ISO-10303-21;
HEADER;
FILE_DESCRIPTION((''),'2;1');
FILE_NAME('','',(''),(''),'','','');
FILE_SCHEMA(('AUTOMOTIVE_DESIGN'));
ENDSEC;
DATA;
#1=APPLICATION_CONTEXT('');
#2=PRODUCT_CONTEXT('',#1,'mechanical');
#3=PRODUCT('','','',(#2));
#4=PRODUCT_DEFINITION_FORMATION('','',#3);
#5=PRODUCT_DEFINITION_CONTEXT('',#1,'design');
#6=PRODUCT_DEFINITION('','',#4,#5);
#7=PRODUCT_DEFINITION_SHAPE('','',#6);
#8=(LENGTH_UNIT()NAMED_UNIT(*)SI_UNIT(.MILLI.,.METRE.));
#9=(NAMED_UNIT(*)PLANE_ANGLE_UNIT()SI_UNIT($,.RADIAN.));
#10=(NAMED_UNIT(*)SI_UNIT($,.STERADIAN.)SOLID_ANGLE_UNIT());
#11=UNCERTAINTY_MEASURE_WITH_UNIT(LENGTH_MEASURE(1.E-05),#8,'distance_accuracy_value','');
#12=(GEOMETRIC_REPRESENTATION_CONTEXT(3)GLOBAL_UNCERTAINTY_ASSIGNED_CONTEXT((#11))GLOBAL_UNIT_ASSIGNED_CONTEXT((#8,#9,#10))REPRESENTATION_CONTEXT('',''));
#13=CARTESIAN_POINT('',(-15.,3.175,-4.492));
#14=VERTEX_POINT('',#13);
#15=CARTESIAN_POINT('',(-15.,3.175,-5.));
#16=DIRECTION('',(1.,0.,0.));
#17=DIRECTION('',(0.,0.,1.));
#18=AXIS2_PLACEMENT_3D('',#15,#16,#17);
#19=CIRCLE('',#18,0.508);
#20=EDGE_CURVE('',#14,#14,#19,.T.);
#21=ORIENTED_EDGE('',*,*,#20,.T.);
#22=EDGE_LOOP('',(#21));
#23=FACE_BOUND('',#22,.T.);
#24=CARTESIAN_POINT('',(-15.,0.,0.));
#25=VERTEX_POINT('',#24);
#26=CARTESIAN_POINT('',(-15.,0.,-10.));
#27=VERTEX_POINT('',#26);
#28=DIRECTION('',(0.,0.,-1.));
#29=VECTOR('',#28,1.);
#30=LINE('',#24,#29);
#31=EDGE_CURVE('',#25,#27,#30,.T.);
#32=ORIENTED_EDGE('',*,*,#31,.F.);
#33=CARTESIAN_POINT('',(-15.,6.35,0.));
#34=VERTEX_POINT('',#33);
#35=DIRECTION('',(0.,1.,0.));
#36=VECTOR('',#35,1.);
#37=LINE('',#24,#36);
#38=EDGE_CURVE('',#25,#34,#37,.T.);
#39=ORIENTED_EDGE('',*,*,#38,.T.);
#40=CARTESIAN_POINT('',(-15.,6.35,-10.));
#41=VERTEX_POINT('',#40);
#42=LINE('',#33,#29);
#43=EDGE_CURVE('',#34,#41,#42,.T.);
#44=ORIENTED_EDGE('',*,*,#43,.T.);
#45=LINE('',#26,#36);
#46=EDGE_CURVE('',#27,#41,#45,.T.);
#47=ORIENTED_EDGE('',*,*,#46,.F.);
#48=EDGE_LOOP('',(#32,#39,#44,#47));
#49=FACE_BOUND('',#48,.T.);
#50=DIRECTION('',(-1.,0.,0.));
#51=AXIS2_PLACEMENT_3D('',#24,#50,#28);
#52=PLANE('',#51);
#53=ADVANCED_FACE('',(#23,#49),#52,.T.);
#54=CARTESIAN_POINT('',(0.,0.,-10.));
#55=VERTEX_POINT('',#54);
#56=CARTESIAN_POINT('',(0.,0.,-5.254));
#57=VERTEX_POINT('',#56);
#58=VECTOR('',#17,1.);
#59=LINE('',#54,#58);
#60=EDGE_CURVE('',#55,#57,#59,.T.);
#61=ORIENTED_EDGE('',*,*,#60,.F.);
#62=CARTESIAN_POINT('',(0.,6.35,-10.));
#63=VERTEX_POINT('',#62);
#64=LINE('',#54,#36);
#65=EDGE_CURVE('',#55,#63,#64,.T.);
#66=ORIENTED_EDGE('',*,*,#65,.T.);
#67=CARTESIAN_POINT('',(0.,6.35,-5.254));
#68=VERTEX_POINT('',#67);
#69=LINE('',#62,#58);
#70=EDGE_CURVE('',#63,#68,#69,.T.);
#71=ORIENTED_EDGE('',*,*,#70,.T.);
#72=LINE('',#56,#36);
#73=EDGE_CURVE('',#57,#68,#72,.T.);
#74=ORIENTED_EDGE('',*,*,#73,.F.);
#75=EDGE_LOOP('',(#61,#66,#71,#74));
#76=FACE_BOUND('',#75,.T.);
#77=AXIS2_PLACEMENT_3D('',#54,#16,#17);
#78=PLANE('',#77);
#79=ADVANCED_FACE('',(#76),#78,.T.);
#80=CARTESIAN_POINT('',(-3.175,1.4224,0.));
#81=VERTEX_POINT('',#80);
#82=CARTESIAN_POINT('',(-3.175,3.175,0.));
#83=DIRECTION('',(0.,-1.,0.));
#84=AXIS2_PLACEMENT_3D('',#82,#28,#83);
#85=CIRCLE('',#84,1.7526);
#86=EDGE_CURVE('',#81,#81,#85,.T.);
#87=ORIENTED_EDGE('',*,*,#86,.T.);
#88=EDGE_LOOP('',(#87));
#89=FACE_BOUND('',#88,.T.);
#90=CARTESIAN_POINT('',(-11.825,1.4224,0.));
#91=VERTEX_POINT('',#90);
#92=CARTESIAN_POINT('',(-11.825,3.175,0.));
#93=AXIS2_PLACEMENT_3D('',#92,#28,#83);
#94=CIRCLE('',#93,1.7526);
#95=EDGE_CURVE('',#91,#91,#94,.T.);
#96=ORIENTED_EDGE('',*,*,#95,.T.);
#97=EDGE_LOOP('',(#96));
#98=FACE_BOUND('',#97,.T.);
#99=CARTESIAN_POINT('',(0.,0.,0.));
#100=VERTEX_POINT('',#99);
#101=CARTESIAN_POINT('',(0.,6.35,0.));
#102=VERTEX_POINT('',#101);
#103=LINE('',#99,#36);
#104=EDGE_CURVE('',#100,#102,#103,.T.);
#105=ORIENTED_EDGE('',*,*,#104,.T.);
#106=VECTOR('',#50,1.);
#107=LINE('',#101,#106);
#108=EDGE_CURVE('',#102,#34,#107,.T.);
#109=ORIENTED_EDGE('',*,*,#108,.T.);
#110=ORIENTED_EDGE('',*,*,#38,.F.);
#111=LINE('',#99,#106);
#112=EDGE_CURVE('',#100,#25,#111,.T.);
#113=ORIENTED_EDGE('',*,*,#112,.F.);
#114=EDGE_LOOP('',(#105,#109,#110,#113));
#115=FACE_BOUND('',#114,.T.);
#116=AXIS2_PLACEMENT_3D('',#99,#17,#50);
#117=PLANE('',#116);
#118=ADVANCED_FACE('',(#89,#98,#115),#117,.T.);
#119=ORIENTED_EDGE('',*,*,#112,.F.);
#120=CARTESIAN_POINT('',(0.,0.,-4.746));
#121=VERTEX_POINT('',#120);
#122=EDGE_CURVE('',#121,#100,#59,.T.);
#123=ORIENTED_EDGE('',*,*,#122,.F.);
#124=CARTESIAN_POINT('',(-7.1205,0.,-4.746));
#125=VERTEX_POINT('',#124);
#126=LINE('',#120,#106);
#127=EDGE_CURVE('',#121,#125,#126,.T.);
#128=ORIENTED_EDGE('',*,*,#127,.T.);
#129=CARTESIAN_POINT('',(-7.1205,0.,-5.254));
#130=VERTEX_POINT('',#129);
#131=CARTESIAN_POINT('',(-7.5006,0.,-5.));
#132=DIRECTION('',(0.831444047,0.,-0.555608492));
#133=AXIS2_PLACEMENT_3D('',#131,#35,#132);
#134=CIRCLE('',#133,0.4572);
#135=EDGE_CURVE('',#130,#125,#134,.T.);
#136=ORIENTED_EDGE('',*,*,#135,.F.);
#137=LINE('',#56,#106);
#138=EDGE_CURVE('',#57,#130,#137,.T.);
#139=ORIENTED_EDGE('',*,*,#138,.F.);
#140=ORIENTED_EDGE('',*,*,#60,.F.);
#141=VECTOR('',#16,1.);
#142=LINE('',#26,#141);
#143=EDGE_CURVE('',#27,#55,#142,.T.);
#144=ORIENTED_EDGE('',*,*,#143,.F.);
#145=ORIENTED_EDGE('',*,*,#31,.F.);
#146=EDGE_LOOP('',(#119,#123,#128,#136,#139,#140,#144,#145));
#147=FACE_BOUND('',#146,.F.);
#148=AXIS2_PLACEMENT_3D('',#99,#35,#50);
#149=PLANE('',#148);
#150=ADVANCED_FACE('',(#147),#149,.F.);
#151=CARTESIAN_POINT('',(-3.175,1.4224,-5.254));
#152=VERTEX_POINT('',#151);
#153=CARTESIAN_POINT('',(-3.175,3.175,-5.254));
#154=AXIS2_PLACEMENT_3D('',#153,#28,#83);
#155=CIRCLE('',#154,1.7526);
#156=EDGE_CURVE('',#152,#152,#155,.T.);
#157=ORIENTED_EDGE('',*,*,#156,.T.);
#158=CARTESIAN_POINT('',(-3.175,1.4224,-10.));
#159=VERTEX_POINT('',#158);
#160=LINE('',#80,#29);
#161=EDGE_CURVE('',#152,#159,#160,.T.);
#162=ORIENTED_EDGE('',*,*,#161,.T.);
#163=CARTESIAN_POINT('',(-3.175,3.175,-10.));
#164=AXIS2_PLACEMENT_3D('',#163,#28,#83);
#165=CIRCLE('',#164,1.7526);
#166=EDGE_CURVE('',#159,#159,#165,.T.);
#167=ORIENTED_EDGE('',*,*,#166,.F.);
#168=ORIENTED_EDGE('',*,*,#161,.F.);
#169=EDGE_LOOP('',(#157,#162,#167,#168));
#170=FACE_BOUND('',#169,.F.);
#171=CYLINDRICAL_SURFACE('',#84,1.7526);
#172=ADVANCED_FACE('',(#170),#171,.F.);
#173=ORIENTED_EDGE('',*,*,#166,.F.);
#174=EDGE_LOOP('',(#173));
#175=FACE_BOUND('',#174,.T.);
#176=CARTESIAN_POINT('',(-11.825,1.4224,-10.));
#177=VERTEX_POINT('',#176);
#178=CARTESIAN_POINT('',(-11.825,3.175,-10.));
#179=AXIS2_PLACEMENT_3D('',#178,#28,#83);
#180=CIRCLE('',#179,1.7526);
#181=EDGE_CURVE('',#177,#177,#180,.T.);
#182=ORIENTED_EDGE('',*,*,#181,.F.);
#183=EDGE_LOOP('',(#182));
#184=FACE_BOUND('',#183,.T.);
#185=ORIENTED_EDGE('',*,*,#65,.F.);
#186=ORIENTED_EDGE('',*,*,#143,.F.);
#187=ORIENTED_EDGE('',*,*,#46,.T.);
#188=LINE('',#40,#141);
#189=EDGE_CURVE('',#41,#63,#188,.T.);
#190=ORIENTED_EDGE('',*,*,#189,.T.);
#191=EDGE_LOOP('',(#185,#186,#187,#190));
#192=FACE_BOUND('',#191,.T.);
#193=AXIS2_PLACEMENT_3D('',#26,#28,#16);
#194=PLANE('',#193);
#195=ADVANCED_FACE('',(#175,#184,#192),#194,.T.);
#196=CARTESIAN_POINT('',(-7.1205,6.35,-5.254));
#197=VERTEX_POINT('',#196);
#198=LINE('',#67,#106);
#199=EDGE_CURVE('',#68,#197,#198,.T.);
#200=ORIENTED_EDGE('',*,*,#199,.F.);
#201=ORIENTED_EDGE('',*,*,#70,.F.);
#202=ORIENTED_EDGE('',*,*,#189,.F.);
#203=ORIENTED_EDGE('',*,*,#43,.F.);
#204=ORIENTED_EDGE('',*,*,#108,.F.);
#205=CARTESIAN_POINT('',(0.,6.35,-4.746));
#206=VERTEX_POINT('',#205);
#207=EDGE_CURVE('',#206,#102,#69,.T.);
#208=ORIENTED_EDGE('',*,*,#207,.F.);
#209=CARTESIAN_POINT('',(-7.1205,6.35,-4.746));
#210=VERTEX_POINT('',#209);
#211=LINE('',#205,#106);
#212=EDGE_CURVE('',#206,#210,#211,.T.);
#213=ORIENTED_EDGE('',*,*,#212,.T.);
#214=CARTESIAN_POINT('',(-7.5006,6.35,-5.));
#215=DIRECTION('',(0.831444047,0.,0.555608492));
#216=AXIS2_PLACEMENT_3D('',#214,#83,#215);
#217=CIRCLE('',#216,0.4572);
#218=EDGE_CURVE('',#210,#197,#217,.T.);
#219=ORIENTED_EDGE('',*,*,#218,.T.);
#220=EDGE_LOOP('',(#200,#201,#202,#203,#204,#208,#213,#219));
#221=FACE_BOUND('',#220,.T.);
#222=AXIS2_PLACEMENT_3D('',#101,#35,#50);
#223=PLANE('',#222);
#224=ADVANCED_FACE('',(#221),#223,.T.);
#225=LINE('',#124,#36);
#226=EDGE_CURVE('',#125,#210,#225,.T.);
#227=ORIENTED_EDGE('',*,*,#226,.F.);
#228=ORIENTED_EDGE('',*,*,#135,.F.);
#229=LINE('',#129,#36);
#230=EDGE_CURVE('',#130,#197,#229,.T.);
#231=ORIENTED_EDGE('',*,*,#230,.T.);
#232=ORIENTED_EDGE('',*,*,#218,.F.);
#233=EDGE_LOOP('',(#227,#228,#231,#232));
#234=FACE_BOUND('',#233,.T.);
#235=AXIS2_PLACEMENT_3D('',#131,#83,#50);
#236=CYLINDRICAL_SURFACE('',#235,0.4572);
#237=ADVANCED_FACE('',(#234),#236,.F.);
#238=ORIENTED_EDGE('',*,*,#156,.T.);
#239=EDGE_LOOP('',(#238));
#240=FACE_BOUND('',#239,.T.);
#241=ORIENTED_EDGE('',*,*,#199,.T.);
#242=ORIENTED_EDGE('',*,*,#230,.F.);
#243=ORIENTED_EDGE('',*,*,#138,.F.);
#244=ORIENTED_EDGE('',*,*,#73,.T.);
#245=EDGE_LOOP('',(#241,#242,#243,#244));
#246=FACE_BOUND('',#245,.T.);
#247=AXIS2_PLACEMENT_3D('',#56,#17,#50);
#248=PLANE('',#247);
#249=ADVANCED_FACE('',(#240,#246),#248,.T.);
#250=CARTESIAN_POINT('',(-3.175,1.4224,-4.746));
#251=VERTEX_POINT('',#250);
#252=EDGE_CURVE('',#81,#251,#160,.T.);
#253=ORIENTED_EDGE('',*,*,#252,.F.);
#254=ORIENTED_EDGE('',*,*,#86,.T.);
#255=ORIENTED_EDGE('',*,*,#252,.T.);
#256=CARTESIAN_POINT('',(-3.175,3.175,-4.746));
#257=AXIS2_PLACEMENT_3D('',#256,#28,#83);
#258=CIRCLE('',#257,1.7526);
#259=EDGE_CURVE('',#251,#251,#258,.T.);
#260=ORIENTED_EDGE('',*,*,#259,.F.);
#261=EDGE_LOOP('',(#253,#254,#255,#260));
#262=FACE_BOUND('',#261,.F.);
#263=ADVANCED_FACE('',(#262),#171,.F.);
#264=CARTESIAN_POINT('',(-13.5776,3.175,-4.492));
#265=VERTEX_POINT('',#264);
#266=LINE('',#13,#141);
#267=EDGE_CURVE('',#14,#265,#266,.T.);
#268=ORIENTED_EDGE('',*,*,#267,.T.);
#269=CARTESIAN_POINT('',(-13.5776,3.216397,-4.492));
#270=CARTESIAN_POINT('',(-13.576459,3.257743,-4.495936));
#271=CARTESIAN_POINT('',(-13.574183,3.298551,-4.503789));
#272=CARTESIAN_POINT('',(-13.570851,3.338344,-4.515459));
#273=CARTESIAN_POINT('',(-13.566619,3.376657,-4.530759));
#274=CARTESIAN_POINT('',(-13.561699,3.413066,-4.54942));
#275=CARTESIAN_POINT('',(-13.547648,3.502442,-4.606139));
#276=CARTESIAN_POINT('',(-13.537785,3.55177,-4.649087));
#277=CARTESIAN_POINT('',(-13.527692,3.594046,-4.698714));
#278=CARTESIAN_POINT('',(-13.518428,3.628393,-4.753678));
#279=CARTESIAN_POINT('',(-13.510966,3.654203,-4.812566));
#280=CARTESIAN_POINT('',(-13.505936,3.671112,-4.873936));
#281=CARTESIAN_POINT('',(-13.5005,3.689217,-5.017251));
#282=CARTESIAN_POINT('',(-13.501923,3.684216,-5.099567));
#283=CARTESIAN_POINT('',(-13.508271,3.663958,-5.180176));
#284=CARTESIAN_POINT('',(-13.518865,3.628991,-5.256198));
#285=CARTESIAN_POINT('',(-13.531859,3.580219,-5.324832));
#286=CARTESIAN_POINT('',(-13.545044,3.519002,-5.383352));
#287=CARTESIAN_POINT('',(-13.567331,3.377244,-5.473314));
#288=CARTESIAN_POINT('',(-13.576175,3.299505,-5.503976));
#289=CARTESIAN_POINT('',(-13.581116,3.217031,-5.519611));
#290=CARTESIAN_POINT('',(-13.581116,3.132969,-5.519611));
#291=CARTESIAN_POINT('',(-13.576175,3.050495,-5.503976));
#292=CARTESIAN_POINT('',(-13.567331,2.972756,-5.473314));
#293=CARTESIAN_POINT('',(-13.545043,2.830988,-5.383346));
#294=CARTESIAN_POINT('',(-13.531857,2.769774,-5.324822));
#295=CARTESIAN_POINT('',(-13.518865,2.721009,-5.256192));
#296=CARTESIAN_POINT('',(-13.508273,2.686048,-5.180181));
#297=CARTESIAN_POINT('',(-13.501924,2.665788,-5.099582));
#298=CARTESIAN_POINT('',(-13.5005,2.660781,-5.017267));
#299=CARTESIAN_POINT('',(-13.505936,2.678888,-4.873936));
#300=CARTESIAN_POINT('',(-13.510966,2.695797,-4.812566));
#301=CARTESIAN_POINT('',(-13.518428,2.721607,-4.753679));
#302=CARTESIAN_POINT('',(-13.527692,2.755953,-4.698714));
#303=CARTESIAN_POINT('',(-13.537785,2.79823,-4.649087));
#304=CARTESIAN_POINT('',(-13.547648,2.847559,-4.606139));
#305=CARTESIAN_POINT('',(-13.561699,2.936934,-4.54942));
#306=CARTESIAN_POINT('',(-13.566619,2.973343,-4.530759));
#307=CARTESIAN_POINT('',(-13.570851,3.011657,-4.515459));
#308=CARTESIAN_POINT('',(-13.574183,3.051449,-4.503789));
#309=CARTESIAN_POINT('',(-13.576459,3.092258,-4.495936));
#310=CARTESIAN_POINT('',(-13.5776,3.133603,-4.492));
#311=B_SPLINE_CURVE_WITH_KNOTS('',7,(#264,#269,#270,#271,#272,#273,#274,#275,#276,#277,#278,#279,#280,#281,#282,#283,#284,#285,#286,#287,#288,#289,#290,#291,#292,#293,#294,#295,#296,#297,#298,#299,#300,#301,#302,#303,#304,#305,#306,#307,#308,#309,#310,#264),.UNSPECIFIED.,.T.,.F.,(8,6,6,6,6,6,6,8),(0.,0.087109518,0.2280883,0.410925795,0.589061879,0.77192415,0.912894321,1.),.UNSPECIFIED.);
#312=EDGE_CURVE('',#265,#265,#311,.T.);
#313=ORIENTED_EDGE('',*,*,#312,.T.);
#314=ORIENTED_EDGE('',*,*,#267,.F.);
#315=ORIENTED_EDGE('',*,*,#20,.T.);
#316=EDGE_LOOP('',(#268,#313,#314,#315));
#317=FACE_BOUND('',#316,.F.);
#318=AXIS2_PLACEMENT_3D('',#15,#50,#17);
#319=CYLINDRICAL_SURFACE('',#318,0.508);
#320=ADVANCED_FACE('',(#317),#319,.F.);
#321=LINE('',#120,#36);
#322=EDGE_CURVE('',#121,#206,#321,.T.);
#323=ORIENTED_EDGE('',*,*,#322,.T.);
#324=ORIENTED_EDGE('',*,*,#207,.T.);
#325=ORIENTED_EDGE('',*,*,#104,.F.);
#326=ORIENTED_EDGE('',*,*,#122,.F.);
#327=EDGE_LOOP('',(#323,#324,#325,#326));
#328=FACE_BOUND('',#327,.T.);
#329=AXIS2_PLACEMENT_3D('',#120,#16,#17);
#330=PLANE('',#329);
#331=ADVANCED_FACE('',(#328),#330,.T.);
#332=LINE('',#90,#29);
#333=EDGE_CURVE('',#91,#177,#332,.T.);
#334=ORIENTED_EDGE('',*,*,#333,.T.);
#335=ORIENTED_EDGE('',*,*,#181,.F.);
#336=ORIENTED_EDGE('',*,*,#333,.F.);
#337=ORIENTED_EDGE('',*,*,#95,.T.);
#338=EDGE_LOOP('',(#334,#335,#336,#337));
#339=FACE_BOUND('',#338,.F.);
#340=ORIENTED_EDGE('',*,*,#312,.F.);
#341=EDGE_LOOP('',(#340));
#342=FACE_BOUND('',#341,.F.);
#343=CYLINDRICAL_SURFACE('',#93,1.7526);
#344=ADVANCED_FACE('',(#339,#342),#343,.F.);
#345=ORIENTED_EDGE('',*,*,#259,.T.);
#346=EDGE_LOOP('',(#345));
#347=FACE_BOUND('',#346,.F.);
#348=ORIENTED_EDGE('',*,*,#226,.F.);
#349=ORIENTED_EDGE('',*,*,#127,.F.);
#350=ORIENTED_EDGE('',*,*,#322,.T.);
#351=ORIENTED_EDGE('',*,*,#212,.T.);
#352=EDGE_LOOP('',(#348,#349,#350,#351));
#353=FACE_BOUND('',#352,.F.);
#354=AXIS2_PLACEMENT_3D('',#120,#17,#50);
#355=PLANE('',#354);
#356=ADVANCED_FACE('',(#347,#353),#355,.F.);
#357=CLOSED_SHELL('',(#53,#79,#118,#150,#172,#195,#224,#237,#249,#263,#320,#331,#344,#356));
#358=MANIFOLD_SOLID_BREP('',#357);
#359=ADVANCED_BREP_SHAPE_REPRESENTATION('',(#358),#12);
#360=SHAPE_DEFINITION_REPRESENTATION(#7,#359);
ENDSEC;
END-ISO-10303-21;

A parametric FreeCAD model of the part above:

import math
import FreeCAD as App
import Part
import Sketcher
Q = App.Units.Quantity

doc = App.newDocument("Part")
body = doc.addObject("PartDesign::Body", "Body")

# Sketch on XZ plane
sketch1 = body.newObject("Sketcher::SketchObject", "Sketch")
sketch1.AttachmentSupport = (doc.getObject("XZ_Plane"), [""])
sketch1.MapMode = "FlatFace"
sketch1.addGeometry([
    Part.LineSegment(App.Vector(-15, 0, 0), App.Vector(0, 0, 0)),  # 0
    Part.LineSegment(App.Vector(0, 0, 0), App.Vector(0, -4.746, 0)),  # 1
    Part.LineSegment(App.Vector(0, -4.746, 0), App.Vector(-7.1205, -4.746, 0)),  # 2
    Part.ArcOfCircle(Part.Circle(App.Vector(-7.5006, -5, 0), App.Vector(0, 0, 1), 0.4572), math.radians(33.752637), math.radians(326.247363)),  # 3
    Part.LineSegment(App.Vector(-7.1205, -5.254, 0), App.Vector(0, -5.254, 0)),  # 4
    Part.LineSegment(App.Vector(0, -5.254, 0), App.Vector(0, -10, 0)),  # 5
    Part.LineSegment(App.Vector(0, -10, 0), App.Vector(-15, -10, 0)),  # 6
    Part.LineSegment(App.Vector(-15, -10, 0), App.Vector(-15, 0, 0)),  # 7
], False)
sketch1.addConstraint([
    Sketcher.Constraint("Coincident", 0, 2, 1, 1),
    Sketcher.Constraint("Coincident", 1, 2, 2, 1),
    Sketcher.Constraint("Coincident", 2, 2, 3, 1),
    Sketcher.Constraint("Coincident", 3, 2, 4, 1),
    Sketcher.Constraint("Coincident", 4, 2, 5, 1),
    Sketcher.Constraint("Coincident", 5, 2, 6, 1),
    Sketcher.Constraint("Coincident", 6, 2, 7, 1),
    Sketcher.Constraint("Coincident", 7, 2, 0, 1),
    Sketcher.Constraint("Horizontal", 0),
    Sketcher.Constraint("Vertical", 1),
    Sketcher.Constraint("Horizontal", 2),
    Sketcher.Constraint("Horizontal", 4),
    Sketcher.Constraint("Vertical", 5),
    Sketcher.Constraint("Horizontal", 6),
    Sketcher.Constraint("Vertical", 7),
    Sketcher.Constraint("Coincident", 0, 2, -1, 1),
    Sketcher.Constraint("PointOnObject", 4, 2, -2),
    Sketcher.Constraint("Vertical", 2, 2, 3, 2),
    Sketcher.Constraint("Equal", 1, 5),
    Sketcher.Constraint("Radius", 3, Q("0.018 in")),
    Sketcher.Constraint("DistanceY", 3, 3, 1, 2, Q("0.01 in")),
    Sketcher.Constraint("DistanceY", 7, 1, 7, 2, Q("0.3937 in")),
    Sketcher.Constraint("DistanceX", 0, 1, 0, 2, 15.0),
    Sketcher.Constraint("DistanceX", 3, 3, -1, 1, Q("0.2953 in")),
])
pad1 = body.newObject("PartDesign::Pad", "Pad")
pad1.Profile = sketch1
pad1.Length = Q("0.25 in")
pad1.Reversed = True

# Sketch on XY plane
sketch2 = body.newObject("Sketcher::SketchObject", "Sketch001")
sketch2.AttachmentSupport = (doc.getObject("XY_Plane"), [""])
sketch2.MapMode = "FlatFace"
sketch2.addGeometry(Part.Circle(App.Vector(-11.825, 3.175, 0), App.Vector(0, 0, 1), 1.7526), False)
sketch2.addConstraint([
    Sketcher.Constraint("Diameter", 0, Q("0.138 in")),
    Sketcher.Constraint("DistanceY", -1, 1, 0, 3, Q("0.125 in")),
    Sketcher.Constraint("DistanceX", 0, 3, -1, 1, 11.825),
])
doc.recompute()
hole = body.newObject("PartDesign::Hole", "Hole")
hole.Profile = sketch2
hole.ThreadType = "None"
hole.Diameter = Q("0.138 in")
hole.DepthType = "ThroughAll"

# Sketch on XY plane
sketch3 = body.newObject("Sketcher::SketchObject", "Sketch002")
sketch3.AttachmentSupport = (doc.getObject("XY_Plane"), [""])
sketch3.MapMode = "FlatFace"
sketch3.addGeometry(Part.Circle(App.Vector(-3.175, 3.175, 0), App.Vector(0, 0, 1), 1.7526), False)
sketch3.addConstraint([
    Sketcher.Constraint("Diameter", 0, Q("0.138 in")),
    Sketcher.Constraint("DistanceX", 0, 3, -1, 1, Q("0.125 in")),
    Sketcher.Constraint("DistanceY", -1, 1, 0, 3, Q("0.125 in")),
])
doc.recompute()
hole2 = body.newObject("PartDesign::Hole", "Hole001")
hole2.Profile = sketch3
hole2.ThreadType = "None"
hole2.Diameter = Q("0.138 in")
hole2.DepthType = "ThroughAll"

# Sketch on YZ plane
sketch4 = body.newObject("Sketcher::SketchObject", "Sketch003")
sketch4.AttachmentSupport = (doc.getObject("YZ_Plane"), [""])
sketch4.MapMode = "FlatFace"
sketch4.AttachmentOffset = App.Placement(App.Vector(0, 0, -15), App.Rotation())
sketch4.addGeometry(Part.Circle(App.Vector(3.175, -5, 0), App.Vector(0, 0, 1), 0.508), False)
sketch4.addConstraint([
    Sketcher.Constraint("Diameter", 0, Q("0.04 in")),
    Sketcher.Constraint("DistanceX", -1, 1, 0, 3, Q("0.125 in")),
    Sketcher.Constraint("DistanceY", 0, 3, -1, 1, 5.0),
])
pocket1 = body.newObject("PartDesign::Pocket", "Pocket")
pocket1.Profile = sketch4
pocket1.Length = Q("0.1377992 in")
pocket1.Reversed = True

doc.recompute()
